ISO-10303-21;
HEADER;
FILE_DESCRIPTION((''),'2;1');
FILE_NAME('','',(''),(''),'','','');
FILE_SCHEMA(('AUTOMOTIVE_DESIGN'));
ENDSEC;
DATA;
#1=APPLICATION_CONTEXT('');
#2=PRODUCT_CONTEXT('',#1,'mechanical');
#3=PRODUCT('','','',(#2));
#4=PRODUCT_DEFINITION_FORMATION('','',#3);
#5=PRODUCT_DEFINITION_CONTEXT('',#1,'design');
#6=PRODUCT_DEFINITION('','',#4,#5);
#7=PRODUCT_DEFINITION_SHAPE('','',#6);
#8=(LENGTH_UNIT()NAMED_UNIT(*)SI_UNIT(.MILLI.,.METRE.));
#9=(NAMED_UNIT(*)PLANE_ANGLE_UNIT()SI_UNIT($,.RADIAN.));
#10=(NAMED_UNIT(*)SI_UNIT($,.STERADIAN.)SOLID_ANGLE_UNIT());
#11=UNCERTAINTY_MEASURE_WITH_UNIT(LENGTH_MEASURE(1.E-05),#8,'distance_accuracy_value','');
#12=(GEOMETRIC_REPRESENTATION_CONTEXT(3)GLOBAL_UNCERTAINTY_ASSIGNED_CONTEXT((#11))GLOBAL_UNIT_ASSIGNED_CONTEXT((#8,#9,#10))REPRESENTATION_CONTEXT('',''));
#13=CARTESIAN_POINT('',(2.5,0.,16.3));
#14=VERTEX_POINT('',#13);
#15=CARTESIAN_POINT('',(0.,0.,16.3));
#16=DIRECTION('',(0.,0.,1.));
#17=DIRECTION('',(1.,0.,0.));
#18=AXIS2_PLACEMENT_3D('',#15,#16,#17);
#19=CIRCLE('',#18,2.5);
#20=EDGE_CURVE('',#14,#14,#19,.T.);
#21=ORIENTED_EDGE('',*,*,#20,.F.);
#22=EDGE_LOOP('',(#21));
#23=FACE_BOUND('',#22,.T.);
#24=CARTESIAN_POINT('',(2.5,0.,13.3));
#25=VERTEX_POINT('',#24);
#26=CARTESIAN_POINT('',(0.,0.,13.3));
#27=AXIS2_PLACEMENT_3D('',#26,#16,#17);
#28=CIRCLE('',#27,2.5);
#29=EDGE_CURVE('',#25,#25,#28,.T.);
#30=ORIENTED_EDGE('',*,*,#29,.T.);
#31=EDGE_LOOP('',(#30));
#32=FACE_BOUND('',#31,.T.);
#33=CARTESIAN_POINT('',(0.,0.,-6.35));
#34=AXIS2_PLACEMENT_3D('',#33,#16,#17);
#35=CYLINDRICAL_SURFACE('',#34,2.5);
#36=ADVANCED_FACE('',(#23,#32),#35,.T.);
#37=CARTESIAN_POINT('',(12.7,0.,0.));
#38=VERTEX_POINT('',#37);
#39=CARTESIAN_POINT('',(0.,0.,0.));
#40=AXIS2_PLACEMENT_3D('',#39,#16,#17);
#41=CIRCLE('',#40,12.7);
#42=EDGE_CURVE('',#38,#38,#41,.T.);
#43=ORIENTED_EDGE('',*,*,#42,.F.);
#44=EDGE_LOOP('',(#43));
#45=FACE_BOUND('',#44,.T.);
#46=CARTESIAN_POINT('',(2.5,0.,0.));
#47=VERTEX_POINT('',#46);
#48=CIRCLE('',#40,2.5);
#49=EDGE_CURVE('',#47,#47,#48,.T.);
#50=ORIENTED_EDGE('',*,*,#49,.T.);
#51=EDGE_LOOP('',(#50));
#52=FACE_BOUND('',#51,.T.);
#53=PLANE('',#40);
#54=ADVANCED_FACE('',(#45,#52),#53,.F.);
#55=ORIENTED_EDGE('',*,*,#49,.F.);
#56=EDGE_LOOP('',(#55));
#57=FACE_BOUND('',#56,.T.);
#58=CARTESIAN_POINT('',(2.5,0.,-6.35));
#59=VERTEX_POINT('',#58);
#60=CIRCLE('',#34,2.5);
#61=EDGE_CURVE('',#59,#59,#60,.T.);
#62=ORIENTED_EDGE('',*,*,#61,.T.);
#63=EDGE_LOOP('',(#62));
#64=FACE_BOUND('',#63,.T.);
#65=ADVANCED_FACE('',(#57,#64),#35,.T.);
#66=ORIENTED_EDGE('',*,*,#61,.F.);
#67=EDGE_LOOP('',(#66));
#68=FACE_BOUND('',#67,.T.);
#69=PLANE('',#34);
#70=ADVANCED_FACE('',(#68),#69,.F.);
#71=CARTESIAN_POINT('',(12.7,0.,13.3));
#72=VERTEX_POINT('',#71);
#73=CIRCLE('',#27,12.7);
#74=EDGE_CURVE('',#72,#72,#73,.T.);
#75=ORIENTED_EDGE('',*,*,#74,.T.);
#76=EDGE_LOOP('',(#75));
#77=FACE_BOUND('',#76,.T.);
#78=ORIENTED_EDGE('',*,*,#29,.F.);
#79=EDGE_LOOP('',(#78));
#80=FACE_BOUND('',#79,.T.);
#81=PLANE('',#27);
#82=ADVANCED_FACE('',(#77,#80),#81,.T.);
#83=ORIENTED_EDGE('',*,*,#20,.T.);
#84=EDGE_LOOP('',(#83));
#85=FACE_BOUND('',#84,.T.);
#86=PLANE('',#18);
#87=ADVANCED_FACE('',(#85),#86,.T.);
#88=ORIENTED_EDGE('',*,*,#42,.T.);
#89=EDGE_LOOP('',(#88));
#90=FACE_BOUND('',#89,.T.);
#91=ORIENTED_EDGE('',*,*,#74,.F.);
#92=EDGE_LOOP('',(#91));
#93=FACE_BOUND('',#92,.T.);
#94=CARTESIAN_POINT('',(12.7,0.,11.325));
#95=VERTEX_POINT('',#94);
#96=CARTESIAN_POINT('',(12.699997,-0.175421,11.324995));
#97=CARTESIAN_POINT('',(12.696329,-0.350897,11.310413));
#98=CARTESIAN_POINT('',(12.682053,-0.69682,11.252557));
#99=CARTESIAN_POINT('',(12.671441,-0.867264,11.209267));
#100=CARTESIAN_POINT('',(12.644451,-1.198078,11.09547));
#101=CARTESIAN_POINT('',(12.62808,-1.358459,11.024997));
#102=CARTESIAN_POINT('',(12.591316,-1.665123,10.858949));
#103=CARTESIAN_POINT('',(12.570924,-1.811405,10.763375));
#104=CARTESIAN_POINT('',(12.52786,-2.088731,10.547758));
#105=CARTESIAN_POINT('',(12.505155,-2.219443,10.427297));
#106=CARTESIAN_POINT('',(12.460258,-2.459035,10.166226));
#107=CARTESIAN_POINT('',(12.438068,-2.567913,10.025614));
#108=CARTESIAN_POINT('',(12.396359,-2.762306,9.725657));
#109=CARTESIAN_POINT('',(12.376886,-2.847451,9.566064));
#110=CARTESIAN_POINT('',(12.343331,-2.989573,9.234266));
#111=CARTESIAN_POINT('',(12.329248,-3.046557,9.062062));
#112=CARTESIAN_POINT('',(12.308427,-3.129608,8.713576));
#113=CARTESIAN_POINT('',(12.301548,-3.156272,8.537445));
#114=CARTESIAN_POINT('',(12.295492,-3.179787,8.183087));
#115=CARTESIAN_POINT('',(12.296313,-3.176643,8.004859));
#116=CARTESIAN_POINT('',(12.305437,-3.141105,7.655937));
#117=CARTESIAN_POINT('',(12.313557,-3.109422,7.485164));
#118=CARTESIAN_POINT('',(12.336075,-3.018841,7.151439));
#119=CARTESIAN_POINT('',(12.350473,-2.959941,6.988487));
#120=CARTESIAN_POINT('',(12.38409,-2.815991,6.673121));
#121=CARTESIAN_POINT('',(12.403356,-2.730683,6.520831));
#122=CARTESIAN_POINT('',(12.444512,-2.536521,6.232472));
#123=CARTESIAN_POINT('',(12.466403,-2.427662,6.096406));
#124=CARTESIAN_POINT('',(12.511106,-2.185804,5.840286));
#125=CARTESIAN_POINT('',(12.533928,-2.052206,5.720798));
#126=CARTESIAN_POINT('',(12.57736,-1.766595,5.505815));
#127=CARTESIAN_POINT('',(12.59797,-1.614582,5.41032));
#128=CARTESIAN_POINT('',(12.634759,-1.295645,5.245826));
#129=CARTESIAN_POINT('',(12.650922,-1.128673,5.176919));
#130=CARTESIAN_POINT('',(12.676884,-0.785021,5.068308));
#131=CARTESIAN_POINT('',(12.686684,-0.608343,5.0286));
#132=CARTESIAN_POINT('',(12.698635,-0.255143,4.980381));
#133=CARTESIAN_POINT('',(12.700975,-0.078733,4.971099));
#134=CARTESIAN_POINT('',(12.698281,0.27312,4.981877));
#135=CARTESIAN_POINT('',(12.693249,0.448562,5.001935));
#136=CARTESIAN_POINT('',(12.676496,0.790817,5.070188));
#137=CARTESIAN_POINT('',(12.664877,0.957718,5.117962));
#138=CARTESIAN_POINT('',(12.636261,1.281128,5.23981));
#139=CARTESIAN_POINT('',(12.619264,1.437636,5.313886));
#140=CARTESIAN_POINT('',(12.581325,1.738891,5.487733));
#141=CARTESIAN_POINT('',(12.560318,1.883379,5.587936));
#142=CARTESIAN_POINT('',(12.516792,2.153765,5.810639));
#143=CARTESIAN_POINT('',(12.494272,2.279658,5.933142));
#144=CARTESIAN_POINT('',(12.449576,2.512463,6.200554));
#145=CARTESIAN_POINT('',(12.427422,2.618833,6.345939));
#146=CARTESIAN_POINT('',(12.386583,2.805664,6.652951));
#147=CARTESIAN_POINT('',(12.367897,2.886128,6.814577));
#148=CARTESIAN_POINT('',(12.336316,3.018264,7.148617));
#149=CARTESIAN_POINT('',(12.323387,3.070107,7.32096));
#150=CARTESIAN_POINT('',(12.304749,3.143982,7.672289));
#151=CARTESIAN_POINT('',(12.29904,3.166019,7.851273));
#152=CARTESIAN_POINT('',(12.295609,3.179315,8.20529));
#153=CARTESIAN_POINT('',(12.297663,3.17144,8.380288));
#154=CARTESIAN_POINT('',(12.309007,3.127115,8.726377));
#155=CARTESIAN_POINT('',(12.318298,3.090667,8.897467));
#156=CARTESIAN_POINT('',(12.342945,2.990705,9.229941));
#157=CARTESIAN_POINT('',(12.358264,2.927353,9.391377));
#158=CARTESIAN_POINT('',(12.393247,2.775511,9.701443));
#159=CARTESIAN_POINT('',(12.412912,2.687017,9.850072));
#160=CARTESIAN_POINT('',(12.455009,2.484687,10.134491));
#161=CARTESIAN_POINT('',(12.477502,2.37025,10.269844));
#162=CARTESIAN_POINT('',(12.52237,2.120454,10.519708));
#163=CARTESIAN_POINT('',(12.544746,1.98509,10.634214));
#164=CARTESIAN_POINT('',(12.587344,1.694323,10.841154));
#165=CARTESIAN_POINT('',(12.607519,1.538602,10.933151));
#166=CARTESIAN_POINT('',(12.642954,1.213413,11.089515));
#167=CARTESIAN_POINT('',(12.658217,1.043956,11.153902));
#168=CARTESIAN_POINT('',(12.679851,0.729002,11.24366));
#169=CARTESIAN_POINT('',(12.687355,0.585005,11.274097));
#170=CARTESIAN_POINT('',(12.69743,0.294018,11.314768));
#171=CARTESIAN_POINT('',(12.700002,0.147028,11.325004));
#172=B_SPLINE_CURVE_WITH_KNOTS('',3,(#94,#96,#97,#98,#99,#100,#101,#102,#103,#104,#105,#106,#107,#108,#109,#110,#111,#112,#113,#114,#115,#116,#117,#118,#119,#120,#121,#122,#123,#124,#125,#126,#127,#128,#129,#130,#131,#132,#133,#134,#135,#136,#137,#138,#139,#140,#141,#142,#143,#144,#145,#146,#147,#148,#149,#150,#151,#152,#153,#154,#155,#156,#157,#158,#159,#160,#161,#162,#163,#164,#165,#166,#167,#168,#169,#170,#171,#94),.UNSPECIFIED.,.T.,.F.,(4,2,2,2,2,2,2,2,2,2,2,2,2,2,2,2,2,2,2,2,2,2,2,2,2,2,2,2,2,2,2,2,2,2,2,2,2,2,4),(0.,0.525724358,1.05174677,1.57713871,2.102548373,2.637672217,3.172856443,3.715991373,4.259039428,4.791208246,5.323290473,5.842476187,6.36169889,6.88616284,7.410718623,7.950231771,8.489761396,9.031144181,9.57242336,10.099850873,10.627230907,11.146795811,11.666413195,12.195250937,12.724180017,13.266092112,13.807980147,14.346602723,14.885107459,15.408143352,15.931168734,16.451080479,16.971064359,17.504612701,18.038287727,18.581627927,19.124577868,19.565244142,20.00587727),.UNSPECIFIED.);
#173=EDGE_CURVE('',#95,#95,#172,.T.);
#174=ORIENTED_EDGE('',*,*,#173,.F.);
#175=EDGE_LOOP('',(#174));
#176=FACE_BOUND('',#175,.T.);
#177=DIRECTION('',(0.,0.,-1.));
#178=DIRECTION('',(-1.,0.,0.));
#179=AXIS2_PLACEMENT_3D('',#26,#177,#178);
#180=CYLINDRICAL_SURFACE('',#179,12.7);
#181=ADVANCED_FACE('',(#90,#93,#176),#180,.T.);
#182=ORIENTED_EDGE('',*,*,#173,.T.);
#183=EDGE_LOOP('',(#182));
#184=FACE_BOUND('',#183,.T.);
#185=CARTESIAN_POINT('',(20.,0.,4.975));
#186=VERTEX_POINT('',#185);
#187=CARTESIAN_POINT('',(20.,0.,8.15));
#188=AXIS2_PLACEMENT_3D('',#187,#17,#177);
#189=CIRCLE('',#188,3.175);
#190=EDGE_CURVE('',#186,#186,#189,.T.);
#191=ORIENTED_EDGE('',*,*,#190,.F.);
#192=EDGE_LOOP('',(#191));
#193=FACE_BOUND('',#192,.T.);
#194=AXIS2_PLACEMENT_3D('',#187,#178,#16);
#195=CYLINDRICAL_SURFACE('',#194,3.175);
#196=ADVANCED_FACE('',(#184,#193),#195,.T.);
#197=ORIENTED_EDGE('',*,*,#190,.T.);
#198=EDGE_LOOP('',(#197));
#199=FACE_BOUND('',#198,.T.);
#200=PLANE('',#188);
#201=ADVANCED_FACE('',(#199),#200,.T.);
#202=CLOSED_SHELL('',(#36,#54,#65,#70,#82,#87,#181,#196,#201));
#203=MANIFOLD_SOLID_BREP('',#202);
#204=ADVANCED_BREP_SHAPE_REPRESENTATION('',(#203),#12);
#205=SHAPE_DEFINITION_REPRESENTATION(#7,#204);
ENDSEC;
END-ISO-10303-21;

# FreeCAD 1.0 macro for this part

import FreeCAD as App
import Part
import Sketcher

V = App.Vector

doc = App.newDocument("Part")
body = doc.addObject("PartDesign::Body", "Body")

sketch1 = body.newObject("Sketcher::SketchObject", "Sketch")
sketch1.AttachmentSupport = (doc.getObject("XY_Plane"), [""])
sketch1.MapMode = "FlatFace"
sketch1.addGeometry([
    Part.Circle(V(0, 0, 0), V(0, 0, 1), 12.7),
    Part.Circle(V(0, 0, 0), V(0, 0, 1), 2.5),
], False)
sketch1.addConstraint([
    Sketcher.Constraint("Coincident", 0, 3, -1, 1),
    Sketcher.Constraint("Coincident", 1, 3, -1, 1),
    Sketcher.Constraint("Diameter", 1, 5.0),
    Sketcher.Constraint("Diameter", 0, 25.4),
])
pad1 = body.newObject("PartDesign::Pad", "Pad")
pad1.Profile = sketch1
pad1.Length = 13.3

sketch2 = body.newObject("Sketcher::SketchObject", "Sketch001")
sketch2.AttachmentSupport = (doc.getObject("XY_Plane"), [""])
sketch2.MapMode = "FlatFace"
sketch2.addGeometry(Part.Circle(V(0, 0, 0), V(0, 0, 1), 2.5), False)
sketch2.addConstraint([
    Sketcher.Constraint("Coincident", 0, 3, -1, 1),
    Sketcher.Constraint("Diameter", 0, 5.0),
])
pad2 = body.newObject("PartDesign::Pad", "Pad001")
pad2.Profile = sketch2
pad2.Type = "TwoLengths"
pad2.Length = 16.3
pad2.Length2 = 6.35

sketch3 = body.newObject("Sketcher::SketchObject", "Sketch002")
sketch3.AttachmentSupport = (doc.getObject("YZ_Plane"), [""])
sketch3.MapMode = "FlatFace"
sketch3.addGeometry(Part.Circle(V(0, 8.2, 0), V(0, 0, 1), 3.2), False)
sketch3.addConstraint([
    Sketcher.Constraint("PointOnObject", 0, 3, -2),
    Sketcher.Constraint("Diameter", 0, 6.35),
    Sketcher.Constraint("DistanceY", -1, 1, 0, 3, 8.15),
])
pad3 = body.newObject("PartDesign::Pad", "Pad002")
pad3.Profile = sketch3
pad3.Length = 20

doc.recompute()
